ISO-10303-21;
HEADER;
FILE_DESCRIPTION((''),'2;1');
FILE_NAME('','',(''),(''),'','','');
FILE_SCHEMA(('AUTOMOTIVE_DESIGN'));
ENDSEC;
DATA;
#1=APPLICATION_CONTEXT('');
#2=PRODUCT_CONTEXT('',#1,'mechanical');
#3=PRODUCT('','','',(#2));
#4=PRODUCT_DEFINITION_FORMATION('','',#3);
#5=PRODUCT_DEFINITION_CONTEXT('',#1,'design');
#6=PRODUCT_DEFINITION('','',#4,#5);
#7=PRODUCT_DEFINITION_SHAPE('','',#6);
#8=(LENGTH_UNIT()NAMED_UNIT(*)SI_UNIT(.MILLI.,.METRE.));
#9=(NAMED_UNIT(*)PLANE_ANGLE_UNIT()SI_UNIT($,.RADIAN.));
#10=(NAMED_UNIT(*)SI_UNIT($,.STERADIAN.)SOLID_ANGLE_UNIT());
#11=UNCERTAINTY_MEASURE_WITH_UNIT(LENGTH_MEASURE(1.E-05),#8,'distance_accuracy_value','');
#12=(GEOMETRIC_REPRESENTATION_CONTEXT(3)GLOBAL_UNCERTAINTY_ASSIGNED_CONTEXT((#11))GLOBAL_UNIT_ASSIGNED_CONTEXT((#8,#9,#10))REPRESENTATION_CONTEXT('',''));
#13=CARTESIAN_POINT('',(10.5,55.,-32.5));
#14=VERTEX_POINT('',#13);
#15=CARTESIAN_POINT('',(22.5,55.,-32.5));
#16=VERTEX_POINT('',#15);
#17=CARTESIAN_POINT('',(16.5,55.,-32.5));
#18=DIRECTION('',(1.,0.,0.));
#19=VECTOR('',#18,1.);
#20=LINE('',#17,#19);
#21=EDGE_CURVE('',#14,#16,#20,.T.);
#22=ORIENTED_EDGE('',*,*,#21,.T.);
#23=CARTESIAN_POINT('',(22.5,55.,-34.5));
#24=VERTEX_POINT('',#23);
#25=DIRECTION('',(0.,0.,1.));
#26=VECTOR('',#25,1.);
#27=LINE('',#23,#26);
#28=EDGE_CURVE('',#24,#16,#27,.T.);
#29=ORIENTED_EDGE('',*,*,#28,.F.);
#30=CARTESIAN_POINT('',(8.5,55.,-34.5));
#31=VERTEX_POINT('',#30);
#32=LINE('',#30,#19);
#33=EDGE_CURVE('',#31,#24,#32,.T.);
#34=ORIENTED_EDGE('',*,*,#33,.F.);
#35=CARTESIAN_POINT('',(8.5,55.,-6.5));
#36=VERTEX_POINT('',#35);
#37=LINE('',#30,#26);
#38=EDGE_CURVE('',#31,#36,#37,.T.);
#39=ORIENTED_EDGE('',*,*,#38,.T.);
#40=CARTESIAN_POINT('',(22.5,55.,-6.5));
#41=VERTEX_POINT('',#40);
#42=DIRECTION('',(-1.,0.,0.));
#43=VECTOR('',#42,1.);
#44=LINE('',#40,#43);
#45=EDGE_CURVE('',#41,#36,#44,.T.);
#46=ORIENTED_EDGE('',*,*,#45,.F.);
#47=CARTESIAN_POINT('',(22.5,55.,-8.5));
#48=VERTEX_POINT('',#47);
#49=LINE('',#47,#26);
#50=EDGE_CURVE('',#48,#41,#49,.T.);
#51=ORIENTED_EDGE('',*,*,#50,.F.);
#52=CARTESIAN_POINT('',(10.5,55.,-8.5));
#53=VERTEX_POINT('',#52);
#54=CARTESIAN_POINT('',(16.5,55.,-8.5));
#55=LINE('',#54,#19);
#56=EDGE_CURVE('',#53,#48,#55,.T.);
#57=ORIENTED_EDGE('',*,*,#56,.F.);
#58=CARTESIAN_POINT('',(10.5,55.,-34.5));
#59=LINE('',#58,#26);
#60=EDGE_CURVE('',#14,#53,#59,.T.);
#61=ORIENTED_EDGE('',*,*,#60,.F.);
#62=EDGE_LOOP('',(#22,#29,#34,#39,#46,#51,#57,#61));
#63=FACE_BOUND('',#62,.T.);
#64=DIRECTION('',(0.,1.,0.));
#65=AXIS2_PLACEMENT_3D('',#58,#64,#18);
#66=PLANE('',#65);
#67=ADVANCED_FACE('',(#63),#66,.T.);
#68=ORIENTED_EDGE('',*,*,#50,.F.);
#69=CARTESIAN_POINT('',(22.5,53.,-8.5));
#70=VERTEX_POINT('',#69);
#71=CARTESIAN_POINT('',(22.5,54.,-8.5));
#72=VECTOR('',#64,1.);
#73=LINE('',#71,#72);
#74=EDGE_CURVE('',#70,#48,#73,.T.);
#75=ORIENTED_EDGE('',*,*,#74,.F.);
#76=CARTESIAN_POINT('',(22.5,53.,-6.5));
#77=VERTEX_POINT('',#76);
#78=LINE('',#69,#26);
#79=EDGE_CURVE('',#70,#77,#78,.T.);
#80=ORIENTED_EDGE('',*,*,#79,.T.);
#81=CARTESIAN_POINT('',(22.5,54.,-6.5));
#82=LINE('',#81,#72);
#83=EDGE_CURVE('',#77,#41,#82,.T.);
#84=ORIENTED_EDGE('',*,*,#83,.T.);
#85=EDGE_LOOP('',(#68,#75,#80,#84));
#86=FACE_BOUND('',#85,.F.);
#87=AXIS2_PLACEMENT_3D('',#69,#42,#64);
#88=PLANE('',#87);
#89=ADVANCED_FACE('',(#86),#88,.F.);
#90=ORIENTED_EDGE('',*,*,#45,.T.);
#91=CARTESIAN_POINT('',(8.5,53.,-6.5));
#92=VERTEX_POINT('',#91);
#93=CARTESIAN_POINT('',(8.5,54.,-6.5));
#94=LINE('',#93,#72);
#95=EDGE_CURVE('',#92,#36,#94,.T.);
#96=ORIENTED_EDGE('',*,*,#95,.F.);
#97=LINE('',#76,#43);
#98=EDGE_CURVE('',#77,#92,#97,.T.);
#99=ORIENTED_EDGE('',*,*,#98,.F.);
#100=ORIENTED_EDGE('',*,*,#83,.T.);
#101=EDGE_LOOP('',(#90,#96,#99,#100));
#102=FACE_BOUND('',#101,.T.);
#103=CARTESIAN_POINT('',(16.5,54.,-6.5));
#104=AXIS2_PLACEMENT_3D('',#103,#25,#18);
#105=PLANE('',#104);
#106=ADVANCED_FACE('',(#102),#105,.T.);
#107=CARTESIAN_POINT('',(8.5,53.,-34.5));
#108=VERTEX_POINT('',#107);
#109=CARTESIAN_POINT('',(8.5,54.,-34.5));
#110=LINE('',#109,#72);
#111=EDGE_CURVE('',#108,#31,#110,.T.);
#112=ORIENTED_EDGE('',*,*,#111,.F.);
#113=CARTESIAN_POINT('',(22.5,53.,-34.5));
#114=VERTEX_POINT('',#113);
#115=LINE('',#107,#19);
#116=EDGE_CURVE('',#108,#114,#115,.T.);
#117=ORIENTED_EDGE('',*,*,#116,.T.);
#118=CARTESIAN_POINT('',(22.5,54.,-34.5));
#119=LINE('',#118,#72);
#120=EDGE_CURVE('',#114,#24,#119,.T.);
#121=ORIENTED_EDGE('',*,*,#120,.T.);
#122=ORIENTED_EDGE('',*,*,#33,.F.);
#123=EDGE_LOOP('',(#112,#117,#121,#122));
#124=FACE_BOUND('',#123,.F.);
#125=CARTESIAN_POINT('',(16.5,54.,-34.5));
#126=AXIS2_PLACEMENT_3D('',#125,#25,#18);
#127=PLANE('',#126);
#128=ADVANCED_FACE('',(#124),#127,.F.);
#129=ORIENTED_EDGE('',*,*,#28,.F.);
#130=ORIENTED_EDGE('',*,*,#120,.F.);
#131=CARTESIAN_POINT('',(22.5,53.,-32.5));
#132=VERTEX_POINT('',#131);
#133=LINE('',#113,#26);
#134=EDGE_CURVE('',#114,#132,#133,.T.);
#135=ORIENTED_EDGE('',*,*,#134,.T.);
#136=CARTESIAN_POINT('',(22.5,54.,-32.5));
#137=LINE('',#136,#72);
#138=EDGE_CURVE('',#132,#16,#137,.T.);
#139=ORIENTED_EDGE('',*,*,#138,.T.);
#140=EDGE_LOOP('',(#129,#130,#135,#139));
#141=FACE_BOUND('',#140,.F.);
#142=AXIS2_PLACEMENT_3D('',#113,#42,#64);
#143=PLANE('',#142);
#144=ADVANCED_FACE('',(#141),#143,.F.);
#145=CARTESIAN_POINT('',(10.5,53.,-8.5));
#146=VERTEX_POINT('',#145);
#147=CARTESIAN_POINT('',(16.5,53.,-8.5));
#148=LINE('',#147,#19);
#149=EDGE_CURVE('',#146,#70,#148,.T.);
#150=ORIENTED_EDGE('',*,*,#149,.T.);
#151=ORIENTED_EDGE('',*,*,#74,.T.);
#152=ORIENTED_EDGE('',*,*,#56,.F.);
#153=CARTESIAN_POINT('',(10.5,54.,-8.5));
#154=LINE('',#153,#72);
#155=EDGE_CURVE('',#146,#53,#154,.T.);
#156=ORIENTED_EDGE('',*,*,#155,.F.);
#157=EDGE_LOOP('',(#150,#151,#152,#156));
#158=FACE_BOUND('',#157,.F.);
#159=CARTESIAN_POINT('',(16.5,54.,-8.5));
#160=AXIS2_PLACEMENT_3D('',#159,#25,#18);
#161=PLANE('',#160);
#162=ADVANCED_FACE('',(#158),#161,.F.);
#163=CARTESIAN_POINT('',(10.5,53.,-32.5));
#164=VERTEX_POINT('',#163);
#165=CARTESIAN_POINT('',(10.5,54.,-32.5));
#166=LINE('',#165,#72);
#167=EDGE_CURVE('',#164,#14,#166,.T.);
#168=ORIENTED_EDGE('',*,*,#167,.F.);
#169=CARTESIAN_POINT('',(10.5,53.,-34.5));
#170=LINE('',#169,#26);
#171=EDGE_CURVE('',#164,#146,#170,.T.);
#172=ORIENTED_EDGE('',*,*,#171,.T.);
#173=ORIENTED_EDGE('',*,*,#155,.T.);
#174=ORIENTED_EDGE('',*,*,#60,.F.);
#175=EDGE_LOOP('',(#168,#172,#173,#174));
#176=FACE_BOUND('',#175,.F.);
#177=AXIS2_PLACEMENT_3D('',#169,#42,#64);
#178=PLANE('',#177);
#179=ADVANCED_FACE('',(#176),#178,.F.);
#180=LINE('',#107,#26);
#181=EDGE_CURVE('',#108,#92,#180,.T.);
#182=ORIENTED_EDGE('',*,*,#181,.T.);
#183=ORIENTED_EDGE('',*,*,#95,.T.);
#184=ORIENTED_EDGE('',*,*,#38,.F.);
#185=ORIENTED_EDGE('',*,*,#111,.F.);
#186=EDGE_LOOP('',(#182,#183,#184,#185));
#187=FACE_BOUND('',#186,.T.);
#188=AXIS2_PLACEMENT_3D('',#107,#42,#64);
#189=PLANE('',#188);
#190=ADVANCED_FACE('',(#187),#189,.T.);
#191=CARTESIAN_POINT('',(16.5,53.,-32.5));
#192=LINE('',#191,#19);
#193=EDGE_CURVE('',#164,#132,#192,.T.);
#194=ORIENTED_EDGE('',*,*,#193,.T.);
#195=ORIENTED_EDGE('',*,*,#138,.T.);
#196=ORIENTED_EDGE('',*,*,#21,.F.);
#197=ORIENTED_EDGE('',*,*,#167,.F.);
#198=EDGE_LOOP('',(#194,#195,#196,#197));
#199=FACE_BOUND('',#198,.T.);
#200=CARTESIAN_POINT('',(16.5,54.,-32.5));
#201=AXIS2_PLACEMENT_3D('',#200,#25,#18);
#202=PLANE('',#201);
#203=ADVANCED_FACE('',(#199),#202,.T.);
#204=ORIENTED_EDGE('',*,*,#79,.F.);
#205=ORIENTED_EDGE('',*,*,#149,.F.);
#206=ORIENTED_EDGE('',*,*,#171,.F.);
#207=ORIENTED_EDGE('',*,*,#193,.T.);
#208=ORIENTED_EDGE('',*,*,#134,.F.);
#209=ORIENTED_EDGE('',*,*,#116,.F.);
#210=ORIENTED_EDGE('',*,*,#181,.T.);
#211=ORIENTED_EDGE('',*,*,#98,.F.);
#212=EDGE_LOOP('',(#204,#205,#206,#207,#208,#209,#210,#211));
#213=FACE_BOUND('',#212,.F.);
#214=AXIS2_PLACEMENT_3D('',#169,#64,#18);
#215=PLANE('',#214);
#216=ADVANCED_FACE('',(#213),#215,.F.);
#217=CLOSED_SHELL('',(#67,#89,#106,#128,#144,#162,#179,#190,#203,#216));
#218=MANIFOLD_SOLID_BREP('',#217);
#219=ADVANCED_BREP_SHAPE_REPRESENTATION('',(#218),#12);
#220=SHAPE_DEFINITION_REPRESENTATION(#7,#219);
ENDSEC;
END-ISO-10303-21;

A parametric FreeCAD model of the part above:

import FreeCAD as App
import Part
import Sketcher
from FreeCAD import Vector
Q = App.Units.Quantity

doc = App.newDocument("Part")
body = doc.addObject("PartDesign::Body", "Body")

sketch1 = body.newObject("Sketcher::SketchObject", "Sketch")
sketch1.AttachmentSupport = (doc.getObject("XY_Plane"), [""])
sketch1.MapMode = "FlatFace"
sketch1.AttachmentOffset = App.Placement(Vector(0, 0, -8.5), App.Rotation())
sketch1.addGeometry([
    Part.LineSegment(Vector(10.5, 55, 0), Vector(10.5, 53, 0)),
    Part.LineSegment(Vector(10.5, 53, 0), Vector(22.5, 53, 0)),
    Part.LineSegment(Vector(22.5, 53, 0), Vector(22.5, 55, 0)),
    Part.LineSegment(Vector(22.5, 55, 0), Vector(10.5, 55, 0)),
], False)
sketch1.addConstraint([
    Sketcher.Constraint("Coincident", 0, 2, 1, 1),
    Sketcher.Constraint("Coincident", 1, 2, 2, 1),
    Sketcher.Constraint("Coincident", 2, 2, 3, 1),
    Sketcher.Constraint("Coincident", 3, 2, 0, 1),
    Sketcher.Constraint("Vertical", 0),
    Sketcher.Constraint("Horizontal", 1),
    Sketcher.Constraint("Vertical", 2),
    Sketcher.Constraint("Horizontal", 3),
    Sketcher.Constraint("DistanceX", 1, 1, 1, 2, Q("12 mm")),
    Sketcher.Constraint("DistanceY", 0, 2, 0, 1, Q("2 mm")),
    Sketcher.Constraint("DistanceY", -1, 1, 0, 2, Q("53 mm")),
    Sketcher.Constraint("DistanceX", -1, 1, 0, 2, Q("10.5 mm")),
])
pad1 = body.newObject("PartDesign::Pad", "Pad")
pad1.Profile = sketch1
pad1.Length = 2
body2 = doc.addObject("PartDesign::Body", "Body001")

sketch2 = body2.newObject("Sketcher::SketchObject", "Sketch001")
sketch2.AttachmentSupport = (doc.getObject("XY_Plane001"), [""])
sketch2.MapMode = "FlatFace"
sketch2.AttachmentOffset = App.Placement(Vector(0, 0, -34.5), App.Rotation())
sketch2.addGeometry([
    Part.LineSegment(Vector(10.5, 55, 0), Vector(10.5, 53, 0)),
    Part.LineSegment(Vector(10.5, 53, 0), Vector(22.5, 53, 0)),
    Part.LineSegment(Vector(22.5, 53, 0), Vector(22.5, 55, 0)),
    Part.LineSegment(Vector(22.5, 55, 0), Vector(10.5, 55, 0)),
], False)
sketch2.addConstraint([
    Sketcher.Constraint("Coincident", 0, 2, 1, 1),
    Sketcher.Constraint("Coincident", 1, 2, 2, 1),
    Sketcher.Constraint("Coincident", 2, 2, 3, 1),
    Sketcher.Constraint("Coincident", 3, 2, 0, 1),
    Sketcher.Constraint("Vertical", 0),
    Sketcher.Constraint("Horizontal", 1),
    Sketcher.Constraint("Vertical", 2),
    Sketcher.Constraint("Horizontal", 3),
    Sketcher.Constraint("DistanceX", 1, 1, 1, 2, Q("12 mm")),
    Sketcher.Constraint("DistanceY", 0, 2, 0, 1, Q("2 mm")),
    Sketcher.Constraint("DistanceY", -1, 1, 0, 2, Q("53 mm")),
    Sketcher.Constraint("DistanceX", -1, 1, 0, 2, Q("10.5 mm")),
])
pad2 = body2.newObject("PartDesign::Pad", "Pad001")
pad2.Profile = sketch2
pad2.Length = 2
body3 = doc.addObject("PartDesign::Body", "Body002")

sketch3 = body3.newObject("Sketcher::SketchObject", "Sketch002")
sketch3.AttachmentSupport = (doc.getObject("XY_Plane002"), [""])
sketch3.MapMode = "FlatFace"
sketch3.AttachmentOffset = App.Placement(Vector(0, 0, -34.5), App.Rotation())
sketch3.addGeometry([
    Part.LineSegment(Vector(8.5, 55, 0), Vector(8.5, 53, 0)),
    Part.LineSegment(Vector(8.5, 53, 0), Vector(10.5, 53, 0)),
    Part.LineSegment(Vector(10.5, 53, 0), Vector(10.5, 55, 0)),
    Part.LineSegment(Vector(10.5, 55, 0), Vector(8.5, 55, 0)),
], False)
sketch3.addConstraint([
    Sketcher.Constraint("Coincident", 0, 2, 1, 1),
    Sketcher.Constraint("Coincident", 1, 2, 2, 1),
    Sketcher.Constraint("Coincident", 2, 2, 3, 1),
    Sketcher.Constraint("Coincident", 3, 2, 0, 1),
    Sketcher.Constraint("Vertical", 0),
    Sketcher.Constraint("Horizontal", 1),
    Sketcher.Constraint("Vertical", 2),
    Sketcher.Constraint("Horizontal", 3),
    Sketcher.Constraint("Equal", 3, 0),
    Sketcher.Constraint("DistanceX", 1, 1, 1, 2, Q("2 mm")),
    Sketcher.Constraint("DistanceY", -1, 1, 0, 2, Q("53 mm")),
    Sketcher.Constraint("DistanceX", -1, 1, 0, 2, Q("8.5 mm")),
])
pad3 = body3.newObject("PartDesign::Pad", "Pad002")
pad3.Profile = sketch3
pad3.Length = 28
doc.recompute()

boolean = body3.newObject("PartDesign::Boolean", "Boolean")
boolean.Type = "Fuse"
boolean.addObjects([body])
doc.recompute()

boolean2 = body3.newObject("PartDesign::Boolean", "Boolean001")
boolean2.Type = "Fuse"
boolean2.addObjects([body2])

doc.recompute()
